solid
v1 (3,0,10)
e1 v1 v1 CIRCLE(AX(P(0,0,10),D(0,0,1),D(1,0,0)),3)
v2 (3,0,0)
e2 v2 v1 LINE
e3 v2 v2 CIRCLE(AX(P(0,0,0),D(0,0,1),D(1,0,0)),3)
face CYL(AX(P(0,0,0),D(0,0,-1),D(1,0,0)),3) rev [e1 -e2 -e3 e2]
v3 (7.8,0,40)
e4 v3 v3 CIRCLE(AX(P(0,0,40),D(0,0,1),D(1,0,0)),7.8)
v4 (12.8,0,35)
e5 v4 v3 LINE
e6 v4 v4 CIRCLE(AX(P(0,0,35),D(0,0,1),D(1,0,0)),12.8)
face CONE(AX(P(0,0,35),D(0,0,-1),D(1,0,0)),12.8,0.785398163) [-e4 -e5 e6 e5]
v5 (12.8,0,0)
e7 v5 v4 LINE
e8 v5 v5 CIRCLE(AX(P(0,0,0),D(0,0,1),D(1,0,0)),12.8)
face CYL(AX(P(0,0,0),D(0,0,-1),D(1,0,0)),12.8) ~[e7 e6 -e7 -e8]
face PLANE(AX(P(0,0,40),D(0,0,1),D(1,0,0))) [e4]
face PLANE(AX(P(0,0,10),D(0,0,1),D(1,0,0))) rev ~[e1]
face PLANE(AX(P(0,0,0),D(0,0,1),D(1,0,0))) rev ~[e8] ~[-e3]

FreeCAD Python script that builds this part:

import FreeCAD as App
import Part
import Sketcher
from FreeCAD import Vector


def edges_at(feature, points):
    """Names of the edges that pass closest to the given points."""
    edges = feature.Shape.Edges
    near = lambda p: min(range(len(edges)), key=lambda i: edges[i].distToShape(Part.Vertex(*p))[0])
    return sorted({f"Edge{near(p) + 1}" for p in points})

doc = App.newDocument("Part")
body = doc.addObject("PartDesign::Body", "Body")

# Sketch on XY plane
sketch1 = body.newObject("Sketcher::SketchObject", "Sketch")
sketch1.AttachmentSupport = (doc.getObject("XY_Plane"), [""])
sketch1.MapMode = "FlatFace"
sketch1.addGeometry(Part.Circle(Vector(0, 0, 0), Vector(0, 0, 1), 13), False)
sketch1.addConstraint(Sketcher.Constraint("Coincident", 0, 3, -1, 1))
sketch1.addConstraint(Sketcher.Constraint("Diameter", 0, 25.6))
pad1 = body.newObject("PartDesign::Pad", "Pad")
pad1.Profile = sketch1
pad1.Length = 40
doc.recompute()

chamfer = body.newObject("PartDesign::Chamfer", "Chamfer")
chamfer.Base = (pad1, edges_at(pad1, [(-12.8, 0, 40)]))
chamfer.Size = 5

# Sketch on XY plane
sketch2 = body.newObject("Sketcher::SketchObject", "Sketch001")
sketch2.AttachmentSupport = (doc.getObject("XY_Plane"), [""])
sketch2.MapMode = "FlatFace"
sketch2.addGeometry(Part.Circle(Vector(0, 0, 0), Vector(0, 0, 1), 3), False)
sketch2.addConstraint(Sketcher.Constraint("Coincident", 0, 3, -1, 1))
sketch2.addConstraint(Sketcher.Constraint("Diameter", 0, 6.0))
pocket1 = body.newObject("PartDesign::Pocket", "Pocket")
pocket1.Profile = sketch2
pocket1.Length = 10
pocket1.Reversed = True

doc.recompute()
